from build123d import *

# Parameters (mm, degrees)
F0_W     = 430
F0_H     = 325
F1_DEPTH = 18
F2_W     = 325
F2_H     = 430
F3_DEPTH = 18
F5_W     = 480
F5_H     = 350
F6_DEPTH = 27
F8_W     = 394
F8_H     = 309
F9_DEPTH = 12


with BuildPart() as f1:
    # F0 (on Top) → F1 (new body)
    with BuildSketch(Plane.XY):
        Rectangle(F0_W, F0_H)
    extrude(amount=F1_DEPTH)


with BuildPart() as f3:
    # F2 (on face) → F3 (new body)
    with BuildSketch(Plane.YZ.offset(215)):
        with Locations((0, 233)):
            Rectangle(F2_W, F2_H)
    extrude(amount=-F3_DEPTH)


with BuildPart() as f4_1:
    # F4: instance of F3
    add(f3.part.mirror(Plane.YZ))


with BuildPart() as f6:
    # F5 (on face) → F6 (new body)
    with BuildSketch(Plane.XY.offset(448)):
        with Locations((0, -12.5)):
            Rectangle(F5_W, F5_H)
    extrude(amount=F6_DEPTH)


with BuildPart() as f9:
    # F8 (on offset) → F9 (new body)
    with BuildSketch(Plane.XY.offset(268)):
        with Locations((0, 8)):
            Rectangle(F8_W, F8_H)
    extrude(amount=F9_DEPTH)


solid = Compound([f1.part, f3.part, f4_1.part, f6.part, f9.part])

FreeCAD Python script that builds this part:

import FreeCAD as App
import Part
import Sketcher
Q = App.Units.Quantity


def add_polygon(sketch, points):
    """Adds a closed chain of lines whose ends are joined by coincident constraints."""
    first, n = sketch.GeometryCount, len(points)
    for a, b in zip(points, points[1:] + points[:1]):
        sketch.addGeometry(Part.LineSegment(App.Vector(*a, 0), App.Vector(*b, 0)), False)
    for i in range(n):
        sketch.addConstraint(Sketcher.Constraint("Coincident", first + i, 2, first + (i + 1) % n, 1))

doc = App.newDocument("Part")
body = doc.addObject("PartDesign::Body", "Body")

# Sketch on XY plane
sketch1 = body.newObject("Sketcher::SketchObject", "Sketch")
sketch1.AttachmentSupport = (doc.getObject("XY_Plane"), [""])
sketch1.MapMode = "FlatFace"
add_polygon(sketch1, [(-215, 162.5), (-215, -162.5), (215, -162.5), (215, 162.5)])  # lines 0-3
sketch1.addConstraint(Sketcher.Constraint("Vertical", 0))
sketch1.addConstraint(Sketcher.Constraint("Horizontal", 1))
sketch1.addConstraint(Sketcher.Constraint("Vertical", 2))
sketch1.addConstraint(Sketcher.Constraint("Horizontal", 3))
sketch1.addConstraint(Sketcher.Constraint("Symmetric", 0, 2, 2, 2, -1, 1))
sketch1.addConstraint(Sketcher.Constraint("DistanceX", 1, 1, 1, 2, Q("430 mm")))
sketch1.addConstraint(Sketcher.Constraint("DistanceY", 0, 2, 0, 1, Q("325 mm")))
pad1 = body.newObject("PartDesign::Pad", "Pad")
pad1.Profile = sketch1
pad1.Length = 18
body2 = doc.addObject("PartDesign::Body", "Body001")

# Sketch on YZ plane
sketch2 = body2.newObject("Sketcher::SketchObject", "Sketch001")
sketch2.AttachmentSupport = (doc.getObject("YZ_Plane001"), [""])
sketch2.MapMode = "FlatFace"
sketch2.AttachmentOffset = App.Placement(App.Vector(0, 0, 215), App.Rotation())
add_polygon(sketch2, [(-162.5, 448), (-162.5, 18), (162.5, 18), (162.5, 448)])  # lines 0-3
sketch2.addConstraint(Sketcher.Constraint("Vertical", 0))
sketch2.addConstraint(Sketcher.Constraint("Horizontal", 1))
sketch2.addConstraint(Sketcher.Constraint("Vertical", 2))
sketch2.addConstraint(Sketcher.Constraint("Horizontal", 3))
sketch2.addConstraint(Sketcher.Constraint("DistanceX", 1, 1, 1, 2, Q("325 mm")))
sketch2.addConstraint(Sketcher.Constraint("DistanceY", 0, 2, 0, 1, Q("430 mm")))
sketch2.addConstraint(Sketcher.Constraint("DistanceY", -1, 1, 0, 2, Q("18 mm")))
sketch2.addConstraint(Sketcher.Constraint("DistanceX", 0, 2, -1, 1, Q("162.5 mm")))
pad2 = body2.newObject("PartDesign::Pad", "Pad001")
pad2.Profile = sketch2
pad2.Length = 18
pad2.Reversed = True
body3 = doc.addObject("PartDesign::Body", "Body002")
doc.recompute()

mirroring = doc.addObject("Part::Mirroring", "Mirroring")
mirroring.Source = body2
mirroring.Base = App.Vector(0, 0, 0)
mirroring.Normal = App.Vector(1, 0, 0)
body3.BaseFeature = mirroring
doc.recompute()
body4 = doc.addObject("PartDesign::Body", "Body003")

# Sketch on XY plane
sketch3 = body4.newObject("Sketcher::SketchObject", "Sketch002")
sketch3.AttachmentSupport = (doc.getObject("XY_Plane003"), [""])
sketch3.MapMode = "FlatFace"
sketch3.AttachmentOffset = App.Placement(App.Vector(0, 0, 448), App.Rotation())
add_polygon(sketch3, [(-240, 162.5), (-240, -187.5), (240, -187.5), (240, 162.5)])  # lines 0-3
sketch3.addConstraint(Sketcher.Constraint("Vertical", 0))
sketch3.addConstraint(Sketcher.Constraint("Horizontal", 1))
sketch3.addConstraint(Sketcher.Constraint("Vertical", 2))
sketch3.addConstraint(Sketcher.Constraint("Horizontal", 3))
sketch3.addConstraint(Sketcher.Constraint("DistanceX", 1, 1, 1, 2, Q("480 mm")))
sketch3.addConstraint(Sketcher.Constraint("DistanceY", 0, 2, 0, 1, Q("350 mm")))
sketch3.addConstraint(Sketcher.Constraint("DistanceX", 0, 2, -1, 1, Q("240 mm")))
sketch3.addConstraint(Sketcher.Constraint("DistanceY", 0, 2, -1, 1, Q("187.5 mm")))
pad3 = body4.newObject("PartDesign::Pad", "Pad002")
pad3.Profile = sketch3
pad3.Length = 27
body5 = doc.addObject("PartDesign::Body", "Body004")

# Sketch on XY plane
sketch4 = body5.newObject("Sketcher::SketchObject", "Sketch003")
sketch4.AttachmentSupport = (doc.getObject("XY_Plane004"), [""])
sketch4.MapMode = "FlatFace"
sketch4.AttachmentOffset = App.Placement(App.Vector(0, 0, 268), App.Rotation())
add_polygon(sketch4, [(-197, 162.5), (-197, -146.5), (197, -146.5), (197, 162.5)])  # lines 0-3
sketch4.addConstraint(Sketcher.Constraint("Vertical", 0))
sketch4.addConstraint(Sketcher.Constraint("Horizontal", 1))
sketch4.addConstraint(Sketcher.Constraint("Vertical", 2))
sketch4.addConstraint(Sketcher.Constraint("Horizontal", 3))
sketch4.addConstraint(Sketcher.Constraint("DistanceX", 1, 1, 1, 2, Q("394 mm")))
sketch4.addConstraint(Sketcher.Constraint("DistanceY", 0, 2, 0, 1, Q("309 mm")))
sketch4.addConstraint(Sketcher.Constraint("DistanceX", 0, 2, -1, 1, Q("197 mm")))
sketch4.addConstraint(Sketcher.Constraint("DistanceY", 0, 2, -1, 1, Q("146.5 mm")))
pad4 = body5.newObject("PartDesign::Pad", "Pad003")
pad4.Profile = sketch4
pad4.Length = 12
mirroring.Visibility = False

doc.recompute()
